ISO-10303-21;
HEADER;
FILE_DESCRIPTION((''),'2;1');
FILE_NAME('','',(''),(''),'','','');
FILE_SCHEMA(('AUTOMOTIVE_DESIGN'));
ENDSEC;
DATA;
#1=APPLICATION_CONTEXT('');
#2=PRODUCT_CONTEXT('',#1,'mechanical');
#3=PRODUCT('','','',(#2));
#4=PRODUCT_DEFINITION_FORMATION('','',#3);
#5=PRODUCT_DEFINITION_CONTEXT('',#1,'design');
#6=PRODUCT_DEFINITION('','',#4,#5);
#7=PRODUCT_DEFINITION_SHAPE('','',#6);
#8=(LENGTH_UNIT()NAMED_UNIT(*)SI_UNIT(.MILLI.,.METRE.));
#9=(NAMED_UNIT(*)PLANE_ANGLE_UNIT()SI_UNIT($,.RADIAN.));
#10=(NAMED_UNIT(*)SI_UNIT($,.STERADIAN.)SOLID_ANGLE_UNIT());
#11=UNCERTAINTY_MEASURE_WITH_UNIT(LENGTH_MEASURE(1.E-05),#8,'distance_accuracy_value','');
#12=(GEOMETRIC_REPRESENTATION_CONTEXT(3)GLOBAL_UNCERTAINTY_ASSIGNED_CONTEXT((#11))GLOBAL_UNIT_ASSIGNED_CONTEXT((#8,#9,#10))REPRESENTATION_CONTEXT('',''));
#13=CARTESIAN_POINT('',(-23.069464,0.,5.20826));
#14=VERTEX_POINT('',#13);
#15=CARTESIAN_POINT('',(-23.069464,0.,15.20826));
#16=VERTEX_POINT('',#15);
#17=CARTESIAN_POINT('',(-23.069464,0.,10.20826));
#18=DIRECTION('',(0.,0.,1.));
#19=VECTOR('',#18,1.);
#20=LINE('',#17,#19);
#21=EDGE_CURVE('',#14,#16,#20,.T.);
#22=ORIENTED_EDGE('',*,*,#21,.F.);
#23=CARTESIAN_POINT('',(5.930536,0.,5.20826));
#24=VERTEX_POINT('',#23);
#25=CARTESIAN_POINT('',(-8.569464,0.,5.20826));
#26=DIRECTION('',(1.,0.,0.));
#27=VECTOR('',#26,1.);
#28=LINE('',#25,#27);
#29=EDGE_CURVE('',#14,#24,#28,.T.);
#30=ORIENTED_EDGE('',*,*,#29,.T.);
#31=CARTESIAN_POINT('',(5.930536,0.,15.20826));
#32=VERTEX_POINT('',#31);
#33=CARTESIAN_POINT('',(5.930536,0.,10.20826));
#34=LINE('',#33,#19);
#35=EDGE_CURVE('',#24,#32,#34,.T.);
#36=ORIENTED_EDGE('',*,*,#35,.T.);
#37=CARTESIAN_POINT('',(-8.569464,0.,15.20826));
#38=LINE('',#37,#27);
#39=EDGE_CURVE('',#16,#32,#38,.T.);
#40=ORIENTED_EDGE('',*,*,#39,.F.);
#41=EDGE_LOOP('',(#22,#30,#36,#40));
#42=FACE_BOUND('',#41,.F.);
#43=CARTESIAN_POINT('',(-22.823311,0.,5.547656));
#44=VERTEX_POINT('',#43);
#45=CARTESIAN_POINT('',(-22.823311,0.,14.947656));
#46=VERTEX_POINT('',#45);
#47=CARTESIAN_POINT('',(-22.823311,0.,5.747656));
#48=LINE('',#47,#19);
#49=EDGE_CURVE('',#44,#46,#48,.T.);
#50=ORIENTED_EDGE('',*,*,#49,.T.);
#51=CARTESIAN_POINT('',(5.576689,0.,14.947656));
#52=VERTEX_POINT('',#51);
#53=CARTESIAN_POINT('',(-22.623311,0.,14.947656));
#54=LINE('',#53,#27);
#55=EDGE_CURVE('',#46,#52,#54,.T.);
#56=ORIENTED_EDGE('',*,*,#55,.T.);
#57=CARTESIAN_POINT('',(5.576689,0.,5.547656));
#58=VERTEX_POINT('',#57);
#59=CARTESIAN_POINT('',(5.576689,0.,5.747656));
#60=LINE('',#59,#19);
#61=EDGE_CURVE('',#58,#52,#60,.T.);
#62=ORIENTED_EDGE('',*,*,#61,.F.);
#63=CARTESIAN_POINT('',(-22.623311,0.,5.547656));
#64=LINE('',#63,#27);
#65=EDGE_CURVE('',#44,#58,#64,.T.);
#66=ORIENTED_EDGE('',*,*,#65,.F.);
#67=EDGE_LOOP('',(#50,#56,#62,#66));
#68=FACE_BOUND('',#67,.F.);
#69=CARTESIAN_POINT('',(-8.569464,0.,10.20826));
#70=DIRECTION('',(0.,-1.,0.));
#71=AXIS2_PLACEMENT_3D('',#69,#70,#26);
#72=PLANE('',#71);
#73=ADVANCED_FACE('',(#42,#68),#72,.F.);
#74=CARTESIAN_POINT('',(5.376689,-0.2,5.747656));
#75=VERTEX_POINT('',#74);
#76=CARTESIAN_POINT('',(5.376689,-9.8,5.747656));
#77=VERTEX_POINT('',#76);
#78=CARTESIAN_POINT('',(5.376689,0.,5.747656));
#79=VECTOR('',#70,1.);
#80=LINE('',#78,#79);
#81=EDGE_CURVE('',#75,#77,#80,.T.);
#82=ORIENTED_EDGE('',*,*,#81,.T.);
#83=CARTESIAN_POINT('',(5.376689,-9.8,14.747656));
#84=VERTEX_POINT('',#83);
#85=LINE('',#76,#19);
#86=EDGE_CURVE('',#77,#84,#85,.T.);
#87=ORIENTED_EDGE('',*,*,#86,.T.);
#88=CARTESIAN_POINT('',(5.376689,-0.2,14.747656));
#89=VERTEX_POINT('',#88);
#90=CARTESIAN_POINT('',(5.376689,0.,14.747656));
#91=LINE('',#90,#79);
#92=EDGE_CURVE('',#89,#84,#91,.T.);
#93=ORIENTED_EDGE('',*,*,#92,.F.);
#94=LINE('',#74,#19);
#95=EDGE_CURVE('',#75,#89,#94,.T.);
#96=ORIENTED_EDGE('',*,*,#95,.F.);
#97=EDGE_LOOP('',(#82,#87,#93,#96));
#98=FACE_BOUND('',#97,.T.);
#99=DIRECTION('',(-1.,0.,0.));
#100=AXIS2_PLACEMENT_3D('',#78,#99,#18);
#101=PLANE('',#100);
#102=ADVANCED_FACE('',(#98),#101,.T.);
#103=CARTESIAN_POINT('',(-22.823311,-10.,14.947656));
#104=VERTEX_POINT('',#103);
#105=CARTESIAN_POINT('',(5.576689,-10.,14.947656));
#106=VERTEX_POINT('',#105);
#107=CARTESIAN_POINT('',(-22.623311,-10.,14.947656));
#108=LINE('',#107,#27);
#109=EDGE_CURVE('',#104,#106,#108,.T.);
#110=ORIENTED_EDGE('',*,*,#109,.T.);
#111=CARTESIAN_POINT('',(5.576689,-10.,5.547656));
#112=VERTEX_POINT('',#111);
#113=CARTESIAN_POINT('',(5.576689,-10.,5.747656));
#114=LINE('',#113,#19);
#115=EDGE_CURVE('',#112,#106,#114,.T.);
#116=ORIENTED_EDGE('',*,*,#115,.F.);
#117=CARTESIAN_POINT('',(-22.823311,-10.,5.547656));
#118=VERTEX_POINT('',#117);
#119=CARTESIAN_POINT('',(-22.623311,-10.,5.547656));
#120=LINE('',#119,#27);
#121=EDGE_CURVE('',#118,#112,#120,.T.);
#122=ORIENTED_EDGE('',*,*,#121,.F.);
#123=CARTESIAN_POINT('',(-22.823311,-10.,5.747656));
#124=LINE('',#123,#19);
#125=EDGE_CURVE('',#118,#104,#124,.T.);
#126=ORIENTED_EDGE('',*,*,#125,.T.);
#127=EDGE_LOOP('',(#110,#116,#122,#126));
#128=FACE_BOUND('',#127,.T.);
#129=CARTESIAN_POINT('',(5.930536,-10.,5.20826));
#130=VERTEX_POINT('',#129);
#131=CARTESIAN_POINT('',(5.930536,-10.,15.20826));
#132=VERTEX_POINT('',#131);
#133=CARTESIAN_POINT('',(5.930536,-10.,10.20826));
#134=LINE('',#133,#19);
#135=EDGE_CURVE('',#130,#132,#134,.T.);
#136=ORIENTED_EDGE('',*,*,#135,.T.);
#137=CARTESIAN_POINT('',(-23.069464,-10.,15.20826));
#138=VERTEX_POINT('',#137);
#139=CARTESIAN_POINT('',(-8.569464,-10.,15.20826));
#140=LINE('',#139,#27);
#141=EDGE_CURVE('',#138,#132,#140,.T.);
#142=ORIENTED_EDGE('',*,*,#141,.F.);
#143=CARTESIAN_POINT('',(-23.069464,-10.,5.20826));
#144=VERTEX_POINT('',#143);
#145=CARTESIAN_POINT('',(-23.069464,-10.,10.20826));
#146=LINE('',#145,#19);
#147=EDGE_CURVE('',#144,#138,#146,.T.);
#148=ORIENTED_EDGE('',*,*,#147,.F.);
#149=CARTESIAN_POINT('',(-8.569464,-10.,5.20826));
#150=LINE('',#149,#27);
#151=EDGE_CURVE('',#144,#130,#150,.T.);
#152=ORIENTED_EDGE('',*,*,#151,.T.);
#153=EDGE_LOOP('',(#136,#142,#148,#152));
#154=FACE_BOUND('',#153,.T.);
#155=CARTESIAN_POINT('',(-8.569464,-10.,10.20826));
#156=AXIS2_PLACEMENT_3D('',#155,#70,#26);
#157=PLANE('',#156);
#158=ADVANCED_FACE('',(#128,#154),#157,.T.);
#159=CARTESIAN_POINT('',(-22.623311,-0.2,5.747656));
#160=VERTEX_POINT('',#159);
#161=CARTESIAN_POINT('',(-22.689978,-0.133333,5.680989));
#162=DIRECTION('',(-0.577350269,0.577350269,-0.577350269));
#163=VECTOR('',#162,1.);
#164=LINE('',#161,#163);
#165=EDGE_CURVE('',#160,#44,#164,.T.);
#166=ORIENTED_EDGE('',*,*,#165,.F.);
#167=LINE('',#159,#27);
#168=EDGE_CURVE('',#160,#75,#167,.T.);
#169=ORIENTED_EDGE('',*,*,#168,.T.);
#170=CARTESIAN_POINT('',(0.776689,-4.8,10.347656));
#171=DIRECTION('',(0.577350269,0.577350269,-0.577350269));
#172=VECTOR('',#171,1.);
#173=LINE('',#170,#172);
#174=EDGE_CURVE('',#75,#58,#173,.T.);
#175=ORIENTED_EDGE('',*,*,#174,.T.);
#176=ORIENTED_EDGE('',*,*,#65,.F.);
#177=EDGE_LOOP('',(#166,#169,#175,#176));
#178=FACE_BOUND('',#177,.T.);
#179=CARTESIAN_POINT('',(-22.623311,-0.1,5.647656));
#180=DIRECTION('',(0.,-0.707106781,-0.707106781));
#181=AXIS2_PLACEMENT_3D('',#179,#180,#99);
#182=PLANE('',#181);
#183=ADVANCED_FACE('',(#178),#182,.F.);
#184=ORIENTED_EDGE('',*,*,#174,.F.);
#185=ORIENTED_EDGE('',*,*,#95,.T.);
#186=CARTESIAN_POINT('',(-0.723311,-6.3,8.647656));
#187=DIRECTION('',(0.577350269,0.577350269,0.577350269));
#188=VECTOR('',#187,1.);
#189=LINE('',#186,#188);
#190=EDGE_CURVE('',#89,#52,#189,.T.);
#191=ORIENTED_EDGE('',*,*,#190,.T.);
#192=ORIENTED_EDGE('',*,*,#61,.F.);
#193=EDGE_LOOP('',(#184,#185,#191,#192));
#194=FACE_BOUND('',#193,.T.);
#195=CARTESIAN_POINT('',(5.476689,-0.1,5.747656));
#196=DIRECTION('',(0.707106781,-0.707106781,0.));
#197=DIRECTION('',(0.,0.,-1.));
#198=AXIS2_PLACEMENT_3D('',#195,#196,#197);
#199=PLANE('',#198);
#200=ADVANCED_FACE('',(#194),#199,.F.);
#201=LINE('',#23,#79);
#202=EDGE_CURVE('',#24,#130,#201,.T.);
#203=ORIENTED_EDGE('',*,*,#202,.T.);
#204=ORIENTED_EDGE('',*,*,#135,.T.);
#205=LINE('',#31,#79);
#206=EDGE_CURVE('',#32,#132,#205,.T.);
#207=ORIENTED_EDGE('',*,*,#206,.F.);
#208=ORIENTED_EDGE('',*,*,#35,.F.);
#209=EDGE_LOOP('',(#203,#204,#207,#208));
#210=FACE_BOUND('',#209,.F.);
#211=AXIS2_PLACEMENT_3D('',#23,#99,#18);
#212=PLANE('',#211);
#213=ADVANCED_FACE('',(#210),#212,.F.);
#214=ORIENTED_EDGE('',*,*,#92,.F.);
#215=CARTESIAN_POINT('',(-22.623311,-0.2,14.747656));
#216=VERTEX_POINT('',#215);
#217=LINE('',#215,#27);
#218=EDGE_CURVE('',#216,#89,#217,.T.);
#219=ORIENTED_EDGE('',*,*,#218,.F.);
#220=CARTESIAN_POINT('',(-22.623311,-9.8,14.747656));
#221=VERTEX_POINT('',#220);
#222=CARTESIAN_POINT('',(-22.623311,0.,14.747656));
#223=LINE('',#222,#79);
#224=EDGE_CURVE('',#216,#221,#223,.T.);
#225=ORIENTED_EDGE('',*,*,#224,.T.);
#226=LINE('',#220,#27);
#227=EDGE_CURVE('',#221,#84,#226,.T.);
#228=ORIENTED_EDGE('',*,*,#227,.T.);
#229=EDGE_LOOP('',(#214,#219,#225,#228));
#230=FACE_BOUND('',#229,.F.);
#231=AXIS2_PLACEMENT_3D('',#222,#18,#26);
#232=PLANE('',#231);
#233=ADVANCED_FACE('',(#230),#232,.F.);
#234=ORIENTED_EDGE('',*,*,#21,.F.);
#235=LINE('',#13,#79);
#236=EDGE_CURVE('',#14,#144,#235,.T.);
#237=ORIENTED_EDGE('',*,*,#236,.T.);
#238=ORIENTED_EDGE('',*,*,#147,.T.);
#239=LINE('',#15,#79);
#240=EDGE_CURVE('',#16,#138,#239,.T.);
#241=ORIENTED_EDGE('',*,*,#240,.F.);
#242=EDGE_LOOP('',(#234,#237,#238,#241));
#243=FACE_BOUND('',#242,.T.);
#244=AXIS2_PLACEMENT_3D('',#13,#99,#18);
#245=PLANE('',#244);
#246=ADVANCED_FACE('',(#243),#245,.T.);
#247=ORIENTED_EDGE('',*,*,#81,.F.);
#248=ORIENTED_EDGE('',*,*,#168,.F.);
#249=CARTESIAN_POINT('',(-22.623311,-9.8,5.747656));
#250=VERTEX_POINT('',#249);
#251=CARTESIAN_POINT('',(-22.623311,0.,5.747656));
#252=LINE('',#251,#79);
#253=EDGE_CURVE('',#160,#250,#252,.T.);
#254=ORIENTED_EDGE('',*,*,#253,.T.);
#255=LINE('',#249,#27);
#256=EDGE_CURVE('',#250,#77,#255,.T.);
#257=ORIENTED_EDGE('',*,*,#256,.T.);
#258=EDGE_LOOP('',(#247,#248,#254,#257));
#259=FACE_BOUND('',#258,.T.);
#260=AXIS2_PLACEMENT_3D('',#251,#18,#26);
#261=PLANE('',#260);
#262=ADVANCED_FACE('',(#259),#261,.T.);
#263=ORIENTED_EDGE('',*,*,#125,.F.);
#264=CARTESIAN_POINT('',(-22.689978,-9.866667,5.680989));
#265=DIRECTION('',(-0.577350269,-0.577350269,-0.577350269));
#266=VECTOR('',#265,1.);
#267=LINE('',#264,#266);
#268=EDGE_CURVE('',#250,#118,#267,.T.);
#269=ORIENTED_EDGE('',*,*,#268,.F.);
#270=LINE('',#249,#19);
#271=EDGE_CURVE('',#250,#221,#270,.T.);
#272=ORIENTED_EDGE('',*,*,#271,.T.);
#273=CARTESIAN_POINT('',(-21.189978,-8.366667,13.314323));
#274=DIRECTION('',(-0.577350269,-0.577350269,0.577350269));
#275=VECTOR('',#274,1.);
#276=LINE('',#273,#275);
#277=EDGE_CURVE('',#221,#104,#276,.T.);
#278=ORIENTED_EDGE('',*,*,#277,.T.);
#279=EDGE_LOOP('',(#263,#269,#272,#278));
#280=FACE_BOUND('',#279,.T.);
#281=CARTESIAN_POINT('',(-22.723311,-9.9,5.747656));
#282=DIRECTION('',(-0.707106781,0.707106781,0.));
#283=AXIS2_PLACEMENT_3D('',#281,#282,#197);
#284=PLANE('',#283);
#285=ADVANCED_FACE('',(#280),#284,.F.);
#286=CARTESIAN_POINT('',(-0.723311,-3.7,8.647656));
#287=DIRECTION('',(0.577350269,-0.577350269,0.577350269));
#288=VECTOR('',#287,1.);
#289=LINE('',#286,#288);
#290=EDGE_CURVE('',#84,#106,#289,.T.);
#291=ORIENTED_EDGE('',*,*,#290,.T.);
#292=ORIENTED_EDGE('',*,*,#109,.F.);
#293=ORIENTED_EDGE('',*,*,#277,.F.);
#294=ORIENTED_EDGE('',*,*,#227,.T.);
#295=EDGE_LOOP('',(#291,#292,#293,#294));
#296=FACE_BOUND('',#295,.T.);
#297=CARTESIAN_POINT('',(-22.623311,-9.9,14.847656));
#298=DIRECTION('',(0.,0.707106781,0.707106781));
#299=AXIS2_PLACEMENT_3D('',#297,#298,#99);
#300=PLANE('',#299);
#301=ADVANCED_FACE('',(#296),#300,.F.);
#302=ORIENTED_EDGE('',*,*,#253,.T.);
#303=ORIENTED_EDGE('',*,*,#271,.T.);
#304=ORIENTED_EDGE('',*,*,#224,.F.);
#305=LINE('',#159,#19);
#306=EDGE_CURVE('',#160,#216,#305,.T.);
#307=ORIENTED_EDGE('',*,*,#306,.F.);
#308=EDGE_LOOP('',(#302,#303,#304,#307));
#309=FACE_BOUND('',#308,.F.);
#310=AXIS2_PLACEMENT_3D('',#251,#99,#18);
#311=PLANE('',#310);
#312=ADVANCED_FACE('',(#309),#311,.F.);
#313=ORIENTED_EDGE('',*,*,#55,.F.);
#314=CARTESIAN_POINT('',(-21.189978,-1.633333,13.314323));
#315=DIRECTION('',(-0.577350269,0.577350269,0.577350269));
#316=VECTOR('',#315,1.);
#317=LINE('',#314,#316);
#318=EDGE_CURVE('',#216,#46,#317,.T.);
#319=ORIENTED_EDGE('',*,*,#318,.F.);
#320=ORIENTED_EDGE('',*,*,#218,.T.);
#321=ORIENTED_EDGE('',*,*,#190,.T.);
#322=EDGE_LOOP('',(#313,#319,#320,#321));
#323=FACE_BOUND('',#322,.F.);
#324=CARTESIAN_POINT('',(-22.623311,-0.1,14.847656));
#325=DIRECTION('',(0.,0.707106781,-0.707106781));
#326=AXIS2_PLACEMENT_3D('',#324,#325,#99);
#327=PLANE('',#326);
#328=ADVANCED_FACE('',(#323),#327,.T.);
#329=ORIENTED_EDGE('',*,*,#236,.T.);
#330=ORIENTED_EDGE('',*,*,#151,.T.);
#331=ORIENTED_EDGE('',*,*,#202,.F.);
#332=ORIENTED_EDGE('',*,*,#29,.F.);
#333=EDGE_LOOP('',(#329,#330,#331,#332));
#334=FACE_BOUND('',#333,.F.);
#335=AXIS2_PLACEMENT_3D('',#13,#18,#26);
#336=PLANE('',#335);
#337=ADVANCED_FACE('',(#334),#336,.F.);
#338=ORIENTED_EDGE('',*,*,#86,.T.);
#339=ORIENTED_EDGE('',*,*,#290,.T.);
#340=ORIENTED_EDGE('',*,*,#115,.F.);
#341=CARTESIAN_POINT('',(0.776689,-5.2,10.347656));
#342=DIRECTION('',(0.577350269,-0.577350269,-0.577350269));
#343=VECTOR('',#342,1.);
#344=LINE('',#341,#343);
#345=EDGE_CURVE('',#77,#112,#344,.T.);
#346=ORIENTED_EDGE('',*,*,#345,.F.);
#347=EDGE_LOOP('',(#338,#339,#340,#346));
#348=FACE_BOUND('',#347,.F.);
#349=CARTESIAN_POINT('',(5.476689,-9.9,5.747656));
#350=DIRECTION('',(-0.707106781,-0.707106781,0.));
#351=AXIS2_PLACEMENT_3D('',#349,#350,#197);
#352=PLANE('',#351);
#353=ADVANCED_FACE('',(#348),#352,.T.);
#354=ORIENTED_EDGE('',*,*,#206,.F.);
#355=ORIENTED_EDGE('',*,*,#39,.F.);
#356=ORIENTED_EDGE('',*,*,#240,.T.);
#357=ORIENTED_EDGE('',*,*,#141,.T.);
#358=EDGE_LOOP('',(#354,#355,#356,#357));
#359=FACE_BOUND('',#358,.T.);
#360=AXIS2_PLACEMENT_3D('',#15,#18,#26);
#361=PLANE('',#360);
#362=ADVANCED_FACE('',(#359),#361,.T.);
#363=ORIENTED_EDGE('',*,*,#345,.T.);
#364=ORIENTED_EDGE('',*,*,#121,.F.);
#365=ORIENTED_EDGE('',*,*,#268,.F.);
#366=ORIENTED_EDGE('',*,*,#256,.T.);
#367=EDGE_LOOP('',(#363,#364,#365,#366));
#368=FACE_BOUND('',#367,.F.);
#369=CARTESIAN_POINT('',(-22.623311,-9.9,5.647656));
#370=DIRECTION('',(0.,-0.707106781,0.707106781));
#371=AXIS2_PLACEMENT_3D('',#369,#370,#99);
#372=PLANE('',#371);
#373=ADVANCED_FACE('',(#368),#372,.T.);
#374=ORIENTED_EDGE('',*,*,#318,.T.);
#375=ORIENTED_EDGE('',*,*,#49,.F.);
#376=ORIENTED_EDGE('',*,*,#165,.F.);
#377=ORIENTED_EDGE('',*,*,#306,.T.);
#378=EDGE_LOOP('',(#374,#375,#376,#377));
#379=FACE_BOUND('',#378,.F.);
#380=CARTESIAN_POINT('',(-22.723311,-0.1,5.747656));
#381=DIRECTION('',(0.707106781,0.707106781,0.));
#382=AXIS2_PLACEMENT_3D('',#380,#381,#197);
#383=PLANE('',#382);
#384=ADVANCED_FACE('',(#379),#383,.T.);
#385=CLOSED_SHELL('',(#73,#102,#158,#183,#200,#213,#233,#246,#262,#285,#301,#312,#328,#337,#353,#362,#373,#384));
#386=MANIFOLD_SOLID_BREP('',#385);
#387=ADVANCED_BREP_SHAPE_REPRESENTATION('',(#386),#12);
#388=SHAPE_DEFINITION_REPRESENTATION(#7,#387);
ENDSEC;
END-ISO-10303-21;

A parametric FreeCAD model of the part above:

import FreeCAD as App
import Part
import Sketcher

V = App.Vector


def edges_at(feature, points):
    """Names of the edges that pass closest to the given points."""
    edges = feature.Shape.Edges
    near = lambda p: min(range(len(edges)), key=lambda i: edges[i].distToShape(Part.Vertex(*p))[0])
    return sorted({f"Edge{near(p) + 1}" for p in points})

doc = App.newDocument("Part")
body = doc.addObject("PartDesign::Body", "Body")

sketch1 = body.newObject("Sketcher::SketchObject", "Sketch")
sketch1.AttachmentSupport = (doc.getObject("XZ_Plane"), [""])
sketch1.MapMode = "FlatFace"
sketch1.addGeometry(Part.LineSegment(V(-23, 15, 0), V(-23, 5, 0)), False)
sketch1.addGeometry(Part.LineSegment(V(-23, 5, 0), V(6, 5, 0)), False)
sketch1.addGeometry(Part.LineSegment(V(6, 5, 0), V(6, 15, 0)), False)
sketch1.addGeometry(Part.LineSegment(V(6, 15, 0), V(-23, 15, 0)), False)
sketch1.addGeometry(Part.LineSegment(V(5, 6, 0), V(-23, 6, 0)), False)
sketch1.addGeometry(Part.LineSegment(V(-23, 6, 0), V(-23, 15, 0)), False)
sketch1.addGeometry(Part.LineSegment(V(-23, 15, 0), V(5, 15, 0)), False)
sketch1.addGeometry(Part.LineSegment(V(5, 15, 0), V(5, 6, 0)), False)
sketch1.addConstraint(Sketcher.Constraint("Coincident", 0, 2, 1, 1))
sketch1.addConstraint(Sketcher.Constraint("Coincident", 1, 2, 2, 1))
sketch1.addConstraint(Sketcher.Constraint("Coincident", 2, 2, 3, 1))
sketch1.addConstraint(Sketcher.Constraint("Coincident", 3, 2, 0, 1))
sketch1.addConstraint(Sketcher.Constraint("Coincident", 4, 2, 5, 1))
sketch1.addConstraint(Sketcher.Constraint("Coincident", 5, 2, 6, 1))
sketch1.addConstraint(Sketcher.Constraint("Coincident", 6, 2, 7, 1))
sketch1.addConstraint(Sketcher.Constraint("Coincident", 7, 2, 4, 1))
sketch1.addConstraint(Sketcher.Constraint("Vertical", 0))
sketch1.addConstraint(Sketcher.Constraint("Horizontal", 1))
sketch1.addConstraint(Sketcher.Constraint("Vertical", 2))
sketch1.addConstraint(Sketcher.Constraint("Horizontal", 3))
sketch1.addConstraint(Sketcher.Constraint("Horizontal", 4))
sketch1.addConstraint(Sketcher.Constraint("Vertical", 5))
sketch1.addConstraint(Sketcher.Constraint("Horizontal", 6))
sketch1.addConstraint(Sketcher.Constraint("Vertical", 7))
sketch1.addConstraint(Sketcher.Constraint("DistanceX", 1, 1, 1, 2, 29.0))
sketch1.addConstraint(Sketcher.Constraint("DistanceX", 4, 2, 4, 1, 28.0))
sketch1.addConstraint(Sketcher.Constraint("DistanceY", 0, 2, 0, 1, 10.0))
sketch1.addConstraint(Sketcher.Constraint("DistanceY", 5, 1, 5, 2, 9.0))
sketch1.addConstraint(Sketcher.Constraint("DistanceY", -1, 1, 0, 2, 5.20826))
sketch1.addConstraint(Sketcher.Constraint("DistanceX", 4, 2, -1, 1, 22.623311))
sketch1.addConstraint(Sketcher.Constraint("DistanceX", 0, 2, -1, 1, 23.069464))
sketch1.addConstraint(Sketcher.Constraint("DistanceY", -1, 1, 4, 2, 5.747656))
pad1 = body.newObject("PartDesign::Pad", "Pad")
pad1.Profile = sketch1
pad1.Length = 10
doc.recompute()

chamfer = body.newObject("PartDesign::Chamfer", "Chamfer")
chamfer.Base = (pad1, edges_at(pad1, [
    (-8.623, -10, 5.748),
    (-8.623, -10, 14.748),
    (5.377, -10, 10.248),
    (-22.623, -10, 10.248),
    (-22.623, 0, 10.248),
    (-8.623, 0, 14.748),
    (-8.623, 0, 5.748),
    (5.377, 0, 10.248),
]))
chamfer.Size = 0.2

doc.recompute()
